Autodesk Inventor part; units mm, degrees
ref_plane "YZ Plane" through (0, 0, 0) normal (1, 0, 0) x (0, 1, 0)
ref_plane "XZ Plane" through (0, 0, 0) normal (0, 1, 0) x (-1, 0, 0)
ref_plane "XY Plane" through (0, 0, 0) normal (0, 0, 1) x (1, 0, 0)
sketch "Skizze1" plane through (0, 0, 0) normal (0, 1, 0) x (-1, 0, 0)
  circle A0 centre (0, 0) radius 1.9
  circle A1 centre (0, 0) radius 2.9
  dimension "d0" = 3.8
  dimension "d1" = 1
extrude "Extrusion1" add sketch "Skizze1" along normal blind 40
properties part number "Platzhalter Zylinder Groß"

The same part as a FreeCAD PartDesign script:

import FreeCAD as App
import Part
import Sketcher
Q = App.Units.Quantity

doc = App.newDocument("Part")
params = doc.addObject("Spreadsheet::Sheet", "Params")
for row, (alias, value) in enumerate([
    ("sketch1_diameter", "3.8 mm"),
    ("sketch1_diameter2", "5.8 mm"),
    ("pad1_length", "40 mm"),
], start=1):
    params.set(f"A{row}", alias)
    params.set(f"B{row}", "=" + value)
    params.setAlias(f"B{row}", alias)

body = doc.addObject("PartDesign::Body", "Body")

sketch1 = body.newObject("Sketcher::SketchObject", "Sketch")
sketch1.AttachmentSupport = (doc.getObject("XZ_Plane"), [""])
sketch1.MapMode = "FlatFace"
sketch1.addGeometry([
    Part.Circle(App.Vector(0, 0, 0), App.Vector(0, 0, 1), 2.9),
    Part.Circle(App.Vector(0, 0, 0), App.Vector(0, 0, 1), 1.9),
], False)
sketch1.addConstraint([
    Sketcher.Constraint("Coincident", 0, 3, -1, 1),
    Sketcher.Constraint("Coincident", 1, 3, -1, 1),
    Sketcher.Constraint("Diameter", 1, Q("3.8 mm")),
    Sketcher.Constraint("Diameter", 0, Q("5.8 mm")),
])
sketch1.setExpression("Constraints[2]", "Params.sketch1_diameter")
sketch1.setExpression("Constraints[3]", "Params.sketch1_diameter2")
pad1 = body.newObject("PartDesign::Pad", "Pad")
pad1.Profile = sketch1
pad1.setExpression("Length", "Params.pad1_length")
pad1.Reversed = True

doc.recompute()
